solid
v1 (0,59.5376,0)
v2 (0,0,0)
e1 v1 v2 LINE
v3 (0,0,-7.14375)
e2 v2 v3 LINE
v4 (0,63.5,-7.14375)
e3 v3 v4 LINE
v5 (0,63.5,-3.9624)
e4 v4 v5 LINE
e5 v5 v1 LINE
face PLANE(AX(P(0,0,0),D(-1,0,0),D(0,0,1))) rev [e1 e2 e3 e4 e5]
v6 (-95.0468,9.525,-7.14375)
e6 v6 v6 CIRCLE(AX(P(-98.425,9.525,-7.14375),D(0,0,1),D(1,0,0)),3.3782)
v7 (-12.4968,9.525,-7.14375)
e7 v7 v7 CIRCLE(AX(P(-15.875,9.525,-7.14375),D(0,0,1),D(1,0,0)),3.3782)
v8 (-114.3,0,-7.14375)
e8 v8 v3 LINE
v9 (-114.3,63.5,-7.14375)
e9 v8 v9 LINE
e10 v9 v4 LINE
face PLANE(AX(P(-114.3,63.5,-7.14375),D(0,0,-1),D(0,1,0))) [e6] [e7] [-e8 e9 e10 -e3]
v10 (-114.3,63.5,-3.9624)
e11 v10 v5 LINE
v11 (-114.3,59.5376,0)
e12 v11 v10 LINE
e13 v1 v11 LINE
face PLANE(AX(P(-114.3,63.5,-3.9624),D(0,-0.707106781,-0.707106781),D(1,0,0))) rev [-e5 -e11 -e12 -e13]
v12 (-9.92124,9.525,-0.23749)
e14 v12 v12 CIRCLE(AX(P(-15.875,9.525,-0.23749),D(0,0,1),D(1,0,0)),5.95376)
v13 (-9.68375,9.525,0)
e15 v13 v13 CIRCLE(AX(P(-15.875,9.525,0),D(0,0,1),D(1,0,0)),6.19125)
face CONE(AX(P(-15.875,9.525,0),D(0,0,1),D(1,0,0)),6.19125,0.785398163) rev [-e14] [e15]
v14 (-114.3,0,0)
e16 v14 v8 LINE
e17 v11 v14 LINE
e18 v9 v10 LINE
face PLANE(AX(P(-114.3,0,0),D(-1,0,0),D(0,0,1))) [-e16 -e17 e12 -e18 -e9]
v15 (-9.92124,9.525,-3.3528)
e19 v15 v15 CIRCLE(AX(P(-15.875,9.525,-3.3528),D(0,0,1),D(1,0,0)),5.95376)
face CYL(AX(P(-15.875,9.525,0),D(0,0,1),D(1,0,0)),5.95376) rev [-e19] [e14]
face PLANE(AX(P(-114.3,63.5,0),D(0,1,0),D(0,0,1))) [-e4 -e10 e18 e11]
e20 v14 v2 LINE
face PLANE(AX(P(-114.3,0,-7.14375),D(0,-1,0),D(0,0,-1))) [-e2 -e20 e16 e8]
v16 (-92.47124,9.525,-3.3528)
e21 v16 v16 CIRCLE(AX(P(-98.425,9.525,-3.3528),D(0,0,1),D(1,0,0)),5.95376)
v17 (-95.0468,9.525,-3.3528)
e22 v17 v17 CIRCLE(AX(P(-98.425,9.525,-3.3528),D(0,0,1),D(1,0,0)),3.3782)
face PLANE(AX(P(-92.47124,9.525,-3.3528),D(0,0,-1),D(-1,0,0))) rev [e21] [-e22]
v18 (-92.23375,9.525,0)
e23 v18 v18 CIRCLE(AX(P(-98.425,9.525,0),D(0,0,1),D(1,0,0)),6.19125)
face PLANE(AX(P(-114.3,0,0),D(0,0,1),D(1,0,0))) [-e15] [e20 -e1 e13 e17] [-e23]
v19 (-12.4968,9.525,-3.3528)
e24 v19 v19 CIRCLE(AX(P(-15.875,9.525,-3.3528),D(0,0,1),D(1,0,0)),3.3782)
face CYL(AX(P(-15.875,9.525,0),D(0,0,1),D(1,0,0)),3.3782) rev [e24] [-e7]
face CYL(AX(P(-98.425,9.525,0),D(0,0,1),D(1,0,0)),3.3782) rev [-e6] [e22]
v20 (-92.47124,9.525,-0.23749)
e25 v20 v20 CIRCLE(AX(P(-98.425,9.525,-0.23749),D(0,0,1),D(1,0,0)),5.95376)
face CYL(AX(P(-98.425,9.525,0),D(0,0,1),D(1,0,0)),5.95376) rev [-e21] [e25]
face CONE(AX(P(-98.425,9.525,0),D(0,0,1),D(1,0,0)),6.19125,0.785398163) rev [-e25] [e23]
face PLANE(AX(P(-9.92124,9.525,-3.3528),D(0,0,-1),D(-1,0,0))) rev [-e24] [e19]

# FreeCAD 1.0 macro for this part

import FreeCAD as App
import Part
import Sketcher

V = App.Vector
Q = App.Units.Quantity


def edges_at(feature, points):
    """Names of the edges that pass closest to the given points."""
    edges = feature.Shape.Edges
    near = lambda p: min(range(len(edges)), key=lambda i: edges[i].distToShape(Part.Vertex(*p))[0])
    return sorted({f"Edge{near(p) + 1}" for p in points})


def add_polygon(sketch, points):
    """Adds a closed chain of lines whose ends are joined by coincident constraints."""
    first, n = sketch.GeometryCount, len(points)
    for a, b in zip(points, points[1:] + points[:1]):
        sketch.addGeometry(Part.LineSegment(App.Vector(*a, 0), App.Vector(*b, 0)), False)
    for i in range(n):
        sketch.addConstraint(Sketcher.Constraint("Coincident", first + i, 2, first + (i + 1) % n, 1))

doc = App.newDocument("Part")
body = doc.addObject("PartDesign::Body", "Body")

# Sketch on YZ plane
sketch1 = body.newObject("Sketcher::SketchObject", "Sketch")
sketch1.AttachmentSupport = (doc.getObject("YZ_Plane"), [""])
sketch1.MapMode = "FlatFace"
add_polygon(sketch1, [(63.5, 0), (0, 0), (0, -7.14375), (63.5, -7.14375)])  # lines 0-3
sketch1.addConstraint([
    Sketcher.Constraint("Horizontal", 0),
    Sketcher.Constraint("Vertical", 1),
    Sketcher.Constraint("Horizontal", 2),
    Sketcher.Constraint("Vertical", 3),
    Sketcher.Constraint("Coincident", 0, 2, -1, 1),
    Sketcher.Constraint("DistanceX", 0, 2, 0, 1, Q("2.5 in")),
    Sketcher.Constraint("DistanceY", 1, 2, 1, 1, Q("0.28125 in")),
])
pad1 = body.newObject("PartDesign::Pad", "Pad")
pad1.Profile = sketch1
pad1.Length = Q("4.5 in")
pad1.Reversed = True

# Sketch on YZ plane
sketch2 = body.newObject("Sketcher::SketchObject", "Sketch001")
sketch2.AttachmentSupport = (doc.getObject("YZ_Plane"), [""])
sketch2.MapMode = "FlatFace"
sketch2.AttachmentOffset = App.Placement(V(0, 0, -3.875 * 25.4), App.Rotation())
add_polygon(sketch2, [(9.525, -7.14375), (9.525, 0), (3.33375, 0), (3.57124, -0.23749), (3.57124, -3.3528), (6.1468, -3.3528), (6.1468, -7.14375)])  # lines 0-6
sketch2.addGeometry(Part.LineSegment(V(9.525, 0, 0), V(9.525, -7.14375, 0)), True)  # axis
sketch2.addConstraint([
    Sketcher.Constraint("Vertical", 0),
    Sketcher.Constraint("Horizontal", 1),
    Sketcher.Constraint("Vertical", 3),
    Sketcher.Constraint("Horizontal", 4),
    Sketcher.Constraint("Vertical", 5),
    Sketcher.Constraint("Horizontal", 6),
    Sketcher.Constraint("Vertical", 7),
    Sketcher.Constraint("Coincident", 7, 1, 0, 2),
    Sketcher.Constraint("PointOnObject", 0, 2, -1),
    Sketcher.Constraint("Horizontal", 5, 2, 7, 2),
    Sketcher.Constraint("Angle", 2, Q("-45 deg")),
    Sketcher.Constraint("DistanceX", 6, 1, 6, 2, Q("0.133 in")),
    Sketcher.Constraint("DistanceY", 0, 1, 0, 2, Q("0.28125 in")),
    Sketcher.Constraint("DistanceX", 4, 1, 4, 2, Q("0.1014 in")),
    Sketcher.Constraint("DistanceX", -1, 1, 0, 2, Q("0.375 in")),
    Sketcher.Constraint("DistanceY", 3, 2, -1, 1, Q("0.132 in")),
    Sketcher.Constraint("DistanceY", 5, 2, 2, 2, Q("0.2719 in")),
])
groove = body.newObject("PartDesign::Groove", "Groove")
groove.Profile = sketch2
groove.ReferenceAxis = (sketch2, ["Axis0"])
groove.Angle = 360
doc.recompute()

linearpattern = body.newObject("PartDesign::LinearPattern", "LinearPattern")
linearpattern.Originals = [groove]
linearpattern.Direction = (doc.getObject("X_Axis"), [""])
linearpattern.Mode = "offset"
linearpattern.Offset = Q("3.25 in")
linearpattern.Occurrences = 2
body.Tip = linearpattern
doc.recompute()

chamfer = body.newObject("PartDesign::Chamfer", "Chamfer")
chamfer.Base = (linearpattern, edges_at(linearpattern, [(-57.15, 63.5, 0)]))
chamfer.Size = Q("0.156 in")

doc.recompute()
